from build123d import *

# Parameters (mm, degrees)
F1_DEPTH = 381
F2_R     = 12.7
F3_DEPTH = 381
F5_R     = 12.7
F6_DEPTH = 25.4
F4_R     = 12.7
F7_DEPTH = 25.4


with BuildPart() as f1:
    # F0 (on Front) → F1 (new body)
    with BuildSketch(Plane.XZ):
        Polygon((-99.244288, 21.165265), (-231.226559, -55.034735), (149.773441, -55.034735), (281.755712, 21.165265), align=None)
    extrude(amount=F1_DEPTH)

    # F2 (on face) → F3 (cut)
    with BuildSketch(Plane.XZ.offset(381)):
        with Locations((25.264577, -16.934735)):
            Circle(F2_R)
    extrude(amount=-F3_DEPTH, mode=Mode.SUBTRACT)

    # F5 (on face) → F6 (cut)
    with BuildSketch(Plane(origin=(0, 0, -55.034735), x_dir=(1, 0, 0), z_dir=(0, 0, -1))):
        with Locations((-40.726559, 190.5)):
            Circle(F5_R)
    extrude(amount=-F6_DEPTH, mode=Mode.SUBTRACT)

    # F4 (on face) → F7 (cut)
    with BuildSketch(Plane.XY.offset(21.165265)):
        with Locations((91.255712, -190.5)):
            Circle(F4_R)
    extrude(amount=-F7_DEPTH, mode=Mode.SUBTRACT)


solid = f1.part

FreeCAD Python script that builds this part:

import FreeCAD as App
import Part
import Sketcher

V = App.Vector
Q = App.Units.Quantity

doc = App.newDocument("Part")
body = doc.addObject("PartDesign::Body", "Body")

# Sketch on XZ plane
sketch1 = doc.addObject("Sketcher::SketchObject", "Sketch")
body.addObject(sketch1)
sketch1.AttachmentSupport = (doc.XZ_Plane, [""])
sketch1.MapMode = "FlatFace"
sketch1.addGeometry([
    Part.LineSegment(V(-99.244288, 21.165265, 0), V(-231.226559, -55.034735, 0)),
    Part.LineSegment(V(-231.226559, -55.034735, 0), V(149.773441, -55.034735, 0)),
    Part.LineSegment(V(149.773441, -55.034735, 0), V(281.755712, 21.165265, 0)),
    Part.LineSegment(V(281.755712, 21.165265, 0), V(-99.244288, 21.165265, 0)),
], False)
sketch1.addConstraint([
    Sketcher.Constraint("Coincident", 0, 2, 1, 1),
    Sketcher.Constraint("Coincident", 1, 2, 2, 1),
    Sketcher.Constraint("Coincident", 2, 2, 3, 1),
    Sketcher.Constraint("Coincident", 3, 2, 0, 1),
    Sketcher.Constraint("Horizontal", 1),
    Sketcher.Constraint("Horizontal", 3),
    Sketcher.Constraint("Parallel", 0, 2),
    Sketcher.Constraint("DistanceX", 1, 1, 1, 2, Q("15 in")),
    Sketcher.Constraint("Distance", 0, Q("6 in")),
    Sketcher.Constraint("Angle", 0, Q("-150 deg")),
    Sketcher.Constraint("DistanceX", 0, 2, -1, 1, Q("231.226559 mm")),
    Sketcher.Constraint("DistanceY", 0, 2, -1, 1, Q("55.034735 mm")),
])
pad1 = doc.addObject("PartDesign::Pad", "Pad")
body.addObject(pad1)
pad1.Profile = sketch1
pad1.Length = Q("15 in")

# Sketch on XZ plane
sketch2 = doc.addObject("Sketcher::SketchObject", "Sketch001")
body.addObject(sketch2)
sketch2.AttachmentSupport = (doc.XZ_Plane, [""])
sketch2.MapMode = "FlatFace"
sketch2.AttachmentOffset = App.Placement(V(0, 0, 15 * 25.4), App.Rotation())
sketch2.addGeometry(Part.Circle(V(25.264577, -16.934735, 0), V(0, 0, 1), 12.7), False)
sketch2.addConstraint([
    Sketcher.Constraint("Diameter", 0, Q("1 in")),
    Sketcher.Constraint("DistanceX", -1, 1, 0, 3, Q("25.264577 mm")),
    Sketcher.Constraint("DistanceY", 0, 3, -1, 1, Q("16.934735 mm")),
])
pocket1 = doc.addObject("PartDesign::Pocket", "Pocket")
body.addObject(pocket1)
pocket1.Profile = sketch2
pocket1.Length = Q("15 in")

# Sketch on XY plane
sketch3 = doc.addObject("Sketcher::SketchObject", "Sketch002")
body.addObject(sketch3)
sketch3.AttachmentSupport = (doc.XY_Plane, [""])
sketch3.MapMode = "FlatFace"
sketch3.AttachmentOffset = App.Placement(V(0, 0, -55.034735), App.Rotation())
sketch3.addGeometry(Part.Circle(V(-40.726559, -190.5, 0), V(0, 0, 1), 12.7), False)
sketch3.addConstraint([
    Sketcher.Constraint("Diameter", 0, Q("1 in")),
    Sketcher.Constraint("DistanceY", 0, 3, -1, 1, Q("7.5 in")),
    Sketcher.Constraint("DistanceX", 0, 3, -1, 1, Q("40.726559 mm")),
])
pocket2 = doc.addObject("PartDesign::Pocket", "Pocket001")
body.addObject(pocket2)
pocket2.Profile = sketch3
pocket2.Length = Q("1 in")
pocket2.Reversed = True

# Sketch on XY plane
sketch4 = doc.addObject("Sketcher::SketchObject", "Sketch003")
body.addObject(sketch4)
sketch4.AttachmentSupport = (doc.XY_Plane, [""])
sketch4.MapMode = "FlatFace"
sketch4.AttachmentOffset = App.Placement(V(0, 0, 21.165265), App.Rotation())
sketch4.addGeometry(Part.Circle(V(91.255712, -190.5, 0), V(0, 0, 1), 12.7), False)
sketch4.addConstraint([
    Sketcher.Constraint("Diameter", 0, Q("1 in")),
    Sketcher.Constraint("DistanceY", 0, 3, -1, 1, Q("7.5 in")),
    Sketcher.Constraint("DistanceX", -1, 1, 0, 3, Q("91.255712 mm")),
])
pocket3 = doc.addObject("PartDesign::Pocket", "Pocket002")
body.addObject(pocket3)
pocket3.Profile = sketch4
pocket3.Length = Q("1 in")

doc.recompute()
